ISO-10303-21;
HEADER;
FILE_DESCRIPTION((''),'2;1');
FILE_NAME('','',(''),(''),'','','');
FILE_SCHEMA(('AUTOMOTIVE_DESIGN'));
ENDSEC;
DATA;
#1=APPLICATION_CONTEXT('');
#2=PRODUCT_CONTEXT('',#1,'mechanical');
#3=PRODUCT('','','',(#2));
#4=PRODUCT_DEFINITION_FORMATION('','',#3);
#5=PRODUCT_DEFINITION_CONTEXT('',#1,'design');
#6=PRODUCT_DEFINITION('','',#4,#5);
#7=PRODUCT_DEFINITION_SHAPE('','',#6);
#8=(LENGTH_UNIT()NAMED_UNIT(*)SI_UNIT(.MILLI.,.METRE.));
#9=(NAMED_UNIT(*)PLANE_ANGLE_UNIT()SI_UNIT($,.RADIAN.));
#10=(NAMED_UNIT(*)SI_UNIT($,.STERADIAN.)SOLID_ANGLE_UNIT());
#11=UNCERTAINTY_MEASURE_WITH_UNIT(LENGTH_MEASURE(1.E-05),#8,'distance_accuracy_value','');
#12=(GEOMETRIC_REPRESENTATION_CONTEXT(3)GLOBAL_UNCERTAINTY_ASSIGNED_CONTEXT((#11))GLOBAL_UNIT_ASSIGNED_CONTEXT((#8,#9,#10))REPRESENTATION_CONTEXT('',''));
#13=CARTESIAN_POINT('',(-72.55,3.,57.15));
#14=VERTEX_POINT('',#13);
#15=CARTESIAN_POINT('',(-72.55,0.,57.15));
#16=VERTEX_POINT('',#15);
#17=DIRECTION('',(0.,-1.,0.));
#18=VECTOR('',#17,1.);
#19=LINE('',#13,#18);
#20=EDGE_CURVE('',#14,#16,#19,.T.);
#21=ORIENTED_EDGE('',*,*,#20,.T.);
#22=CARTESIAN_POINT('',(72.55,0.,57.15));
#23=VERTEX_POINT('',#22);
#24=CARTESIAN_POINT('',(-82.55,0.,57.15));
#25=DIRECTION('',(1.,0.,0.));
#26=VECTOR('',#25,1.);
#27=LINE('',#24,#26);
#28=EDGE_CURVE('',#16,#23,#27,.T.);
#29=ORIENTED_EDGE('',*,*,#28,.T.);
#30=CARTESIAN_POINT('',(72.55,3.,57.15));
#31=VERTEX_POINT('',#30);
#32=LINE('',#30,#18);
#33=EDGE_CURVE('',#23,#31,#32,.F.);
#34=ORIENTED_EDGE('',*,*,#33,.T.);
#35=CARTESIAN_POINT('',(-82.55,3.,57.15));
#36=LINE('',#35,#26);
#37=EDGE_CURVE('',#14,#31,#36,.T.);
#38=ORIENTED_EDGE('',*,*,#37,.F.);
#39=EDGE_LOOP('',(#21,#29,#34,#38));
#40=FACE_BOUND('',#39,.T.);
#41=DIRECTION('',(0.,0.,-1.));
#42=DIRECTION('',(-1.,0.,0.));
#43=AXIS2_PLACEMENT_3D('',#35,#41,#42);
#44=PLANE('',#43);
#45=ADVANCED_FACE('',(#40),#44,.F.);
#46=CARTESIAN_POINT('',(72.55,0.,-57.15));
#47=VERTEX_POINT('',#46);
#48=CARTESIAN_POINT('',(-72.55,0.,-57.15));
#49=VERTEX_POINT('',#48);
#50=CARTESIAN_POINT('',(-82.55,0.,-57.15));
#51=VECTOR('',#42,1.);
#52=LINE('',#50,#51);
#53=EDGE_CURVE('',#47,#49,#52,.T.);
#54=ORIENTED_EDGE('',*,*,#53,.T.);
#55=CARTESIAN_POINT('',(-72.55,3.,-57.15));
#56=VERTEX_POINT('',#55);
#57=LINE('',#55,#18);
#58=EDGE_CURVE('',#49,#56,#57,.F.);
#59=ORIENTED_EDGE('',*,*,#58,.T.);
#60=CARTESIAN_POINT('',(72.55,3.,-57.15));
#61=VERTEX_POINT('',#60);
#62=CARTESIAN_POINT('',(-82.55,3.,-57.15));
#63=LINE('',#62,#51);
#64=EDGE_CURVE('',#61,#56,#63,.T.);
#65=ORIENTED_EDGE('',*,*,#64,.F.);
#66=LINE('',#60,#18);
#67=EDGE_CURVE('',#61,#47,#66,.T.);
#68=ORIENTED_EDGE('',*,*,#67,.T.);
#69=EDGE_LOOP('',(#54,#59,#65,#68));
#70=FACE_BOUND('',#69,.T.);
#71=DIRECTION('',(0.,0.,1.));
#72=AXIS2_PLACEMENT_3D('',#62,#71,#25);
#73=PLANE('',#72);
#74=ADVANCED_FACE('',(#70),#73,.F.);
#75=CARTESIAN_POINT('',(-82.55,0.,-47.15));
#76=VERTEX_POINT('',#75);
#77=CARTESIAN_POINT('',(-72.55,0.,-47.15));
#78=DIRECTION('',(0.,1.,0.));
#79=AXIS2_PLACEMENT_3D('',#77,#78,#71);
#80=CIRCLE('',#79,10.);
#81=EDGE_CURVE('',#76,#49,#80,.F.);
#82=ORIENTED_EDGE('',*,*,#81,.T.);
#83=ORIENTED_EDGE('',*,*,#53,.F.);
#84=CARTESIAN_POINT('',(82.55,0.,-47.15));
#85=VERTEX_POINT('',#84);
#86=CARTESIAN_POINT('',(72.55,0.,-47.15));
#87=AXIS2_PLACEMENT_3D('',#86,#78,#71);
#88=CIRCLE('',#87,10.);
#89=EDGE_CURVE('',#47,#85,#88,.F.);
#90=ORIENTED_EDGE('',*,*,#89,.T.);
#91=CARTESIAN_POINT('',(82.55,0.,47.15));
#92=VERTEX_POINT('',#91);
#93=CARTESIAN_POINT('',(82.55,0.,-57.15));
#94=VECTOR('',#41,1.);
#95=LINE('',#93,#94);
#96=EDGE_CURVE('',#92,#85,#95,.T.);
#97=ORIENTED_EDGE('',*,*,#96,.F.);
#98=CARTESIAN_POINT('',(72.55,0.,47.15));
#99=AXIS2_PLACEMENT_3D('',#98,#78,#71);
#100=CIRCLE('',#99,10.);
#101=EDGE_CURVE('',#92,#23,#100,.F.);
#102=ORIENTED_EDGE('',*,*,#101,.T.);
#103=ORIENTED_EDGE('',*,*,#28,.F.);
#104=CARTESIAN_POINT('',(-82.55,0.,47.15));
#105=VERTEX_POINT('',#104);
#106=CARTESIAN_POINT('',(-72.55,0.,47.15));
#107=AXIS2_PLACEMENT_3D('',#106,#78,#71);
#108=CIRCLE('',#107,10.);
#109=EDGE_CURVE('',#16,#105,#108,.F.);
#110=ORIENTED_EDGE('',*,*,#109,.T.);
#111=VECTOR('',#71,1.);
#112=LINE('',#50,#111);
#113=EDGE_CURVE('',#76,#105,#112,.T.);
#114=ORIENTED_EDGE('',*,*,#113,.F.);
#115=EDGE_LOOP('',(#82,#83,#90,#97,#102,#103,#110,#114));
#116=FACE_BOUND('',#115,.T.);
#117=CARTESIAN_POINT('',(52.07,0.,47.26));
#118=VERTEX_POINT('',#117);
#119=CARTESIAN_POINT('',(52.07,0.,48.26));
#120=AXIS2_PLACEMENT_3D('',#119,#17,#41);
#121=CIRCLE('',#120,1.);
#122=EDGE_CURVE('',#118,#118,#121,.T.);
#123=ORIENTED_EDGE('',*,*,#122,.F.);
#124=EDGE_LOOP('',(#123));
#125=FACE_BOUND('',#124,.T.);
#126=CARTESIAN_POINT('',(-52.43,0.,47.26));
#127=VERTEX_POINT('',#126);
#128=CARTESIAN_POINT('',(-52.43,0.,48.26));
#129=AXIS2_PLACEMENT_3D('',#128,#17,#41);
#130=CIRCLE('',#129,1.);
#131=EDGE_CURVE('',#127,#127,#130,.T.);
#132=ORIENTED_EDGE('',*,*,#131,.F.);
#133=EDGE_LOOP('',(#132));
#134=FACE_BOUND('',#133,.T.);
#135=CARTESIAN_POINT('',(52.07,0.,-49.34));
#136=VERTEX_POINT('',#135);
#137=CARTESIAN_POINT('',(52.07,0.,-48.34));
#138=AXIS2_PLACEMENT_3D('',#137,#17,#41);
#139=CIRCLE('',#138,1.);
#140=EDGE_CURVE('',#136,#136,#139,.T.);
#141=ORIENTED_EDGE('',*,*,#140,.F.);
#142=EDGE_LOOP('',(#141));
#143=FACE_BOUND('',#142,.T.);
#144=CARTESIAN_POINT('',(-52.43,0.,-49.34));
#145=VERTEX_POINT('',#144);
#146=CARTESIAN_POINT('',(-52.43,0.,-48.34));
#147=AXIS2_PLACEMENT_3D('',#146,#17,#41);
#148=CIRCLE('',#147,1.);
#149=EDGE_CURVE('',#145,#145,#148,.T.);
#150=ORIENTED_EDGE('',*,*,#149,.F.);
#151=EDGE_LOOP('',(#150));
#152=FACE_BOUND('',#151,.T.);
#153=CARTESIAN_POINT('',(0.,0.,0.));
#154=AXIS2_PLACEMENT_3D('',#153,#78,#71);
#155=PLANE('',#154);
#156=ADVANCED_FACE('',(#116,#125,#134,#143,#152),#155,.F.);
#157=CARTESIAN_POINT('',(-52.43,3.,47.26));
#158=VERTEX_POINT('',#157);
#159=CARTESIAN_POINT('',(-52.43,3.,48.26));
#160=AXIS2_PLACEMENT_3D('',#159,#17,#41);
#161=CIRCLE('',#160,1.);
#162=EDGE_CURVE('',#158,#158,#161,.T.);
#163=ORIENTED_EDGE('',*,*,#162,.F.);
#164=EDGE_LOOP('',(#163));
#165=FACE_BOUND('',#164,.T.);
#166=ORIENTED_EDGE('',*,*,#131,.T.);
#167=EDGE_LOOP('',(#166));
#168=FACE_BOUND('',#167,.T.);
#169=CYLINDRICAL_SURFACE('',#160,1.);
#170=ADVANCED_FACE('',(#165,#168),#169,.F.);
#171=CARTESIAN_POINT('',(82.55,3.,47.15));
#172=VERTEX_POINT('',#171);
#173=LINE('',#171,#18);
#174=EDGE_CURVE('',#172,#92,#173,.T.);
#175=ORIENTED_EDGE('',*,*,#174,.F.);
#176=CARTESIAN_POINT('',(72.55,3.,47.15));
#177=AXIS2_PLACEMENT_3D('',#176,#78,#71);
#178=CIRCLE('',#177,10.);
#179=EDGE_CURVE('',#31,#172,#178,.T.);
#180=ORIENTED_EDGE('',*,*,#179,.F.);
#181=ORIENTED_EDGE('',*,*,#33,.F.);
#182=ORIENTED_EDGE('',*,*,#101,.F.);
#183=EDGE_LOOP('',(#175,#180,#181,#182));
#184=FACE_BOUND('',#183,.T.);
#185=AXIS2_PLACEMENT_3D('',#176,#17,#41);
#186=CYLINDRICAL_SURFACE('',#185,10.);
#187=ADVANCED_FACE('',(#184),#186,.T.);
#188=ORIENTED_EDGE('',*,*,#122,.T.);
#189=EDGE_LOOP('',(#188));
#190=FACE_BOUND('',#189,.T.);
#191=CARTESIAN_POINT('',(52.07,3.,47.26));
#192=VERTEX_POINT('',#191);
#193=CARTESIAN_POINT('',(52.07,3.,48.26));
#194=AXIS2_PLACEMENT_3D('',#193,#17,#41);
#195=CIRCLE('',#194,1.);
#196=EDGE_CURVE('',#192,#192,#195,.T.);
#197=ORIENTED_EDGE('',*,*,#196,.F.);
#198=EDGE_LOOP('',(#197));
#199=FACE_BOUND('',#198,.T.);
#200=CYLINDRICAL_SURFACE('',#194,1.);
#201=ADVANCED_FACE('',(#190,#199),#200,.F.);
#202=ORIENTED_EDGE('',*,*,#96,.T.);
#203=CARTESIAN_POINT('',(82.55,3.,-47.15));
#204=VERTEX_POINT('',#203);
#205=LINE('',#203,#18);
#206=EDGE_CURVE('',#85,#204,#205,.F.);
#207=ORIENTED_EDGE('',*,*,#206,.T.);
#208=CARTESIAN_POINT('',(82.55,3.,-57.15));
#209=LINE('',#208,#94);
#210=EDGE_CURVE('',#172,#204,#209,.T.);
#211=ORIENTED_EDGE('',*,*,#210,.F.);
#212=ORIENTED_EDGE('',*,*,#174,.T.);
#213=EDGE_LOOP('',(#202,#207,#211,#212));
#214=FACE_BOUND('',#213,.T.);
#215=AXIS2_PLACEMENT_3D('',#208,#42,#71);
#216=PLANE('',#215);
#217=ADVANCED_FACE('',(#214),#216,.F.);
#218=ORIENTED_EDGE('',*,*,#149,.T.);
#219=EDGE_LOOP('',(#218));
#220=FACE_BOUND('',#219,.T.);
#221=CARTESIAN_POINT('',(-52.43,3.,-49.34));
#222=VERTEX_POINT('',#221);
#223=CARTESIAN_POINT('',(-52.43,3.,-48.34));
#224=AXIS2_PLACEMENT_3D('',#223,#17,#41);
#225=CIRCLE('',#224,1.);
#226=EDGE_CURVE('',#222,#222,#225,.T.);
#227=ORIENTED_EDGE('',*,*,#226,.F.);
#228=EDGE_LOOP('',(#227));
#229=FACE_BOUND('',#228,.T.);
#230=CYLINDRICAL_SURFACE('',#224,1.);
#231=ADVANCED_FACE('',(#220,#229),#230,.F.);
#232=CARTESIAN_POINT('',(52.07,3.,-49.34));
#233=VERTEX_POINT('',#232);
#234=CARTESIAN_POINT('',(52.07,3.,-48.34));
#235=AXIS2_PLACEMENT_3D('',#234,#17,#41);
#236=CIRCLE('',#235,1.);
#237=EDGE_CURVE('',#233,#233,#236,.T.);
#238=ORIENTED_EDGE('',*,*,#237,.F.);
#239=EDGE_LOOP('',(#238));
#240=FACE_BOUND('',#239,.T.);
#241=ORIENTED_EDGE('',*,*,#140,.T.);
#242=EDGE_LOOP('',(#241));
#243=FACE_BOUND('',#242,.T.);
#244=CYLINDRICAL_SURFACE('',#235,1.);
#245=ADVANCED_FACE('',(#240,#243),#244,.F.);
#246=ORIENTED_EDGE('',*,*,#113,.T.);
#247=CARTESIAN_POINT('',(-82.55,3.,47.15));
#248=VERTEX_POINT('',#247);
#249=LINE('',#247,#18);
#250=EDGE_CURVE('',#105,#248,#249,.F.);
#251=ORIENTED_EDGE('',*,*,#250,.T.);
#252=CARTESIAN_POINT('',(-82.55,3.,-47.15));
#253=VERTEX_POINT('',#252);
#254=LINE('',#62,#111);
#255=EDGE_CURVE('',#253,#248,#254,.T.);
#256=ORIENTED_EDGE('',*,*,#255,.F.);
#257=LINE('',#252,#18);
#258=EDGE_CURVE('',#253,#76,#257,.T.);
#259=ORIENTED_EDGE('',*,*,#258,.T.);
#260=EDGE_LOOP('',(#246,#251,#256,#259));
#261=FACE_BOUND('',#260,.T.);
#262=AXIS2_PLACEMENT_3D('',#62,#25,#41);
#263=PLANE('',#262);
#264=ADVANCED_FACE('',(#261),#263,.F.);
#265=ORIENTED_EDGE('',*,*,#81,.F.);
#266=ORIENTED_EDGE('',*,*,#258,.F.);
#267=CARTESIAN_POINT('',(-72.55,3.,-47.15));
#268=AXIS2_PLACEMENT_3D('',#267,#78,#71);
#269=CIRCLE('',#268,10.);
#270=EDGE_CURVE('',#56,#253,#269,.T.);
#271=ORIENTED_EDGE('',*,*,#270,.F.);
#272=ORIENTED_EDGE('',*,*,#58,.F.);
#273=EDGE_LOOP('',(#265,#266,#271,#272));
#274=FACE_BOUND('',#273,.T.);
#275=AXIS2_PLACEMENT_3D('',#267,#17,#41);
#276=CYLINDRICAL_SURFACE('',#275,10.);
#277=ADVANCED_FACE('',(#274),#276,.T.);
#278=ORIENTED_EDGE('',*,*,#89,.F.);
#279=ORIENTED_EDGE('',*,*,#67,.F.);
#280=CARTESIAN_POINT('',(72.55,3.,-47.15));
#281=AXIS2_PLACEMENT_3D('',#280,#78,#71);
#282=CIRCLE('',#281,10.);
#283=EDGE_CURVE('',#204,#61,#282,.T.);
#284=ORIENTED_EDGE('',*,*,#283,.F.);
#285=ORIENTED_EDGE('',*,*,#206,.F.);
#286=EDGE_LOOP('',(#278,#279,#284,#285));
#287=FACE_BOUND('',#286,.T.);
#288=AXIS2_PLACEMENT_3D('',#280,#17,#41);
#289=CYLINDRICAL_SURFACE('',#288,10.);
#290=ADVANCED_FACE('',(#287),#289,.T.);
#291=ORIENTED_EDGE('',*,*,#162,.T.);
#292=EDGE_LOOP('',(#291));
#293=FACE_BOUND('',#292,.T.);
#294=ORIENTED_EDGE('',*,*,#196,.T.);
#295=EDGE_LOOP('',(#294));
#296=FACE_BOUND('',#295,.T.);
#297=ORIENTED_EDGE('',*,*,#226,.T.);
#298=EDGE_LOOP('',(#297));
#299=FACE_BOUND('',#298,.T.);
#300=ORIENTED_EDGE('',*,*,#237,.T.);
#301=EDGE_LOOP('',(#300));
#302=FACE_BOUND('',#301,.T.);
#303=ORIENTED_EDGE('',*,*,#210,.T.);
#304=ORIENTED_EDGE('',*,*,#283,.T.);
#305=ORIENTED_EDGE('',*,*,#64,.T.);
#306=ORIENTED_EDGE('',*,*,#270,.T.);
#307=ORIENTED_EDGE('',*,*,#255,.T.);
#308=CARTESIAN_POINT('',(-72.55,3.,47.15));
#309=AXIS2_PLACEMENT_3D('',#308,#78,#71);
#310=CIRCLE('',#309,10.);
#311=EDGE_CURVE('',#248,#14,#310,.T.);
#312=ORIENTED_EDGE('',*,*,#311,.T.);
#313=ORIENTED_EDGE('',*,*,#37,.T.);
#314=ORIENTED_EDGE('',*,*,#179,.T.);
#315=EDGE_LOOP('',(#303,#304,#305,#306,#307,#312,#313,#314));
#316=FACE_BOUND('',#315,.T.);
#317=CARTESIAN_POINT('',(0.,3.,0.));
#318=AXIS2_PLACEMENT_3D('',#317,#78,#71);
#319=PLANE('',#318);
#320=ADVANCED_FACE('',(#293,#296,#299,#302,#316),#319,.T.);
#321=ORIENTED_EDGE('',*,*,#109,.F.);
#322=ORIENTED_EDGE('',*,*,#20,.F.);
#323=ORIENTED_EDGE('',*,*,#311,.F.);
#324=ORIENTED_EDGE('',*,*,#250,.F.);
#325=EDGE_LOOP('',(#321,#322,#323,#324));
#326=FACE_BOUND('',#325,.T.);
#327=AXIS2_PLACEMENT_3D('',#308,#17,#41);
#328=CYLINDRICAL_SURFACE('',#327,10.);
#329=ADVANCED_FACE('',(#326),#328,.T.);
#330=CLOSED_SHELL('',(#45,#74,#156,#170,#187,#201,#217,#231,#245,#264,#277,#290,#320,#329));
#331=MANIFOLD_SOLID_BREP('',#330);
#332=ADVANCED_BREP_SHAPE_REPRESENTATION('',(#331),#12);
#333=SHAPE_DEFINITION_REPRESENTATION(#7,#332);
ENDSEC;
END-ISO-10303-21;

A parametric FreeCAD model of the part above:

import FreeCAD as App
import Part
import Sketcher
from FreeCAD import Vector


def edges_at(feature, points):
    """Names of the edges that pass closest to the given points."""
    edges = feature.Shape.Edges
    near = lambda p: min(range(len(edges)), key=lambda i: edges[i].distToShape(Part.Vertex(*p))[0])
    return sorted({f"Edge{near(p) + 1}" for p in points})

doc = App.newDocument("Part")
body = doc.addObject("PartDesign::Body", "Body")

# Sketch on XZ plane
sketch1 = body.newObject("Sketcher::SketchObject", "Sketch")
sketch1.AttachmentSupport = (doc.getObject("XZ_Plane"), [""])
sketch1.MapMode = "FlatFace"
sketch1.addGeometry(Part.LineSegment(Vector(-82.55, -57.15, 0), Vector(-82.55, 57.15, 0)), False)
sketch1.addGeometry(Part.LineSegment(Vector(-82.55, 57.15, 0), Vector(82.55, 57.15, 0)), False)
sketch1.addGeometry(Part.LineSegment(Vector(82.55, 57.15, 0), Vector(82.55, -57.15, 0)), False)
sketch1.addGeometry(Part.LineSegment(Vector(82.55, -57.15, 0), Vector(-82.55, -57.15, 0)), False)
sketch1.addConstraint(Sketcher.Constraint("Coincident", 0, 2, 1, 1))
sketch1.addConstraint(Sketcher.Constraint("Coincident", 1, 2, 2, 1))
sketch1.addConstraint(Sketcher.Constraint("Coincident", 2, 2, 3, 1))
sketch1.addConstraint(Sketcher.Constraint("Coincident", 3, 2, 0, 1))
sketch1.addConstraint(Sketcher.Constraint("Vertical", 0))
sketch1.addConstraint(Sketcher.Constraint("Horizontal", 1))
sketch1.addConstraint(Sketcher.Constraint("Vertical", 2))
sketch1.addConstraint(Sketcher.Constraint("Horizontal", 3))
sketch1.addConstraint(Sketcher.Constraint("Symmetric", 0, 2, 2, 2, -1, 1))
sketch1.addConstraint(Sketcher.Constraint("DistanceX", 1, 1, 1, 2, 165.1))
sketch1.addConstraint(Sketcher.Constraint("DistanceY", 0, 1, 0, 2, 114.3))
pad1 = body.newObject("PartDesign::Pad", "Pad")
pad1.Profile = sketch1
pad1.Length = 3
pad1.Reversed = True
doc.recompute()

fillet = body.newObject("PartDesign::Fillet", "Fillet")
fillet.Base = (pad1, edges_at(pad1, [
    (82.55, 1.5, 57.15),
    (-82.55, 1.5, 57.15),
    (-82.55, 1.5, -57.15),
    (82.55, 1.5, -57.15),
]))
fillet.Radius = 10

# Sketch on XZ plane
sketch2 = body.newObject("Sketcher::SketchObject", "Sketch001")
sketch2.AttachmentSupport = (doc.getObject("XZ_Plane"), [""])
sketch2.MapMode = "FlatFace"
sketch2.addGeometry(Part.Circle(Vector(-52.43, 48.26, 0), Vector(0, 0, 1), 1), False)
sketch2.addGeometry(Part.Circle(Vector(-52.43, -48.34, 0), Vector(0, 0, 1), 1), False)
sketch2.addGeometry(Part.Circle(Vector(52.07, 48.26, 0), Vector(0, 0, 1), 1), False)
sketch2.addGeometry(Part.Circle(Vector(52.07, -48.34, 0), Vector(0, 0, 1), 1), False)
sketch2.addConstraint(Sketcher.Constraint("Equal", 0, 1))
sketch2.addConstraint(Sketcher.Constraint("Equal", 1, 2))
sketch2.addConstraint(Sketcher.Constraint("Equal", 2, 3))
sketch2.addConstraint(Sketcher.Constraint("Horizontal", 0, 3, 2, 3))
sketch2.addConstraint(Sketcher.Constraint("Horizontal", 1, 3, 3, 3))
sketch2.addConstraint(Sketcher.Constraint("Vertical", 0, 3, 1, 3))
sketch2.addConstraint(Sketcher.Constraint("Vertical", 2, 3, 3, 3))
sketch2.addConstraint(Sketcher.Constraint("Diameter", 0, 2.0))
sketch2.addConstraint(Sketcher.Constraint("DistanceY", 1, 3, 0, 3, 96.6))
sketch2.addConstraint(Sketcher.Constraint("DistanceX", 0, 3, 2, 3, 104.5))
sketch2.addConstraint(Sketcher.Constraint("DistanceX", 0, 3, -1, 1, 52.43))
sketch2.addConstraint(Sketcher.Constraint("DistanceY", -1, 1, 0, 3, 48.26))
pocket1 = body.newObject("PartDesign::Pocket", "Pocket")
pocket1.Profile = sketch2
pocket1.Type = "ThroughAll"

doc.recompute()
